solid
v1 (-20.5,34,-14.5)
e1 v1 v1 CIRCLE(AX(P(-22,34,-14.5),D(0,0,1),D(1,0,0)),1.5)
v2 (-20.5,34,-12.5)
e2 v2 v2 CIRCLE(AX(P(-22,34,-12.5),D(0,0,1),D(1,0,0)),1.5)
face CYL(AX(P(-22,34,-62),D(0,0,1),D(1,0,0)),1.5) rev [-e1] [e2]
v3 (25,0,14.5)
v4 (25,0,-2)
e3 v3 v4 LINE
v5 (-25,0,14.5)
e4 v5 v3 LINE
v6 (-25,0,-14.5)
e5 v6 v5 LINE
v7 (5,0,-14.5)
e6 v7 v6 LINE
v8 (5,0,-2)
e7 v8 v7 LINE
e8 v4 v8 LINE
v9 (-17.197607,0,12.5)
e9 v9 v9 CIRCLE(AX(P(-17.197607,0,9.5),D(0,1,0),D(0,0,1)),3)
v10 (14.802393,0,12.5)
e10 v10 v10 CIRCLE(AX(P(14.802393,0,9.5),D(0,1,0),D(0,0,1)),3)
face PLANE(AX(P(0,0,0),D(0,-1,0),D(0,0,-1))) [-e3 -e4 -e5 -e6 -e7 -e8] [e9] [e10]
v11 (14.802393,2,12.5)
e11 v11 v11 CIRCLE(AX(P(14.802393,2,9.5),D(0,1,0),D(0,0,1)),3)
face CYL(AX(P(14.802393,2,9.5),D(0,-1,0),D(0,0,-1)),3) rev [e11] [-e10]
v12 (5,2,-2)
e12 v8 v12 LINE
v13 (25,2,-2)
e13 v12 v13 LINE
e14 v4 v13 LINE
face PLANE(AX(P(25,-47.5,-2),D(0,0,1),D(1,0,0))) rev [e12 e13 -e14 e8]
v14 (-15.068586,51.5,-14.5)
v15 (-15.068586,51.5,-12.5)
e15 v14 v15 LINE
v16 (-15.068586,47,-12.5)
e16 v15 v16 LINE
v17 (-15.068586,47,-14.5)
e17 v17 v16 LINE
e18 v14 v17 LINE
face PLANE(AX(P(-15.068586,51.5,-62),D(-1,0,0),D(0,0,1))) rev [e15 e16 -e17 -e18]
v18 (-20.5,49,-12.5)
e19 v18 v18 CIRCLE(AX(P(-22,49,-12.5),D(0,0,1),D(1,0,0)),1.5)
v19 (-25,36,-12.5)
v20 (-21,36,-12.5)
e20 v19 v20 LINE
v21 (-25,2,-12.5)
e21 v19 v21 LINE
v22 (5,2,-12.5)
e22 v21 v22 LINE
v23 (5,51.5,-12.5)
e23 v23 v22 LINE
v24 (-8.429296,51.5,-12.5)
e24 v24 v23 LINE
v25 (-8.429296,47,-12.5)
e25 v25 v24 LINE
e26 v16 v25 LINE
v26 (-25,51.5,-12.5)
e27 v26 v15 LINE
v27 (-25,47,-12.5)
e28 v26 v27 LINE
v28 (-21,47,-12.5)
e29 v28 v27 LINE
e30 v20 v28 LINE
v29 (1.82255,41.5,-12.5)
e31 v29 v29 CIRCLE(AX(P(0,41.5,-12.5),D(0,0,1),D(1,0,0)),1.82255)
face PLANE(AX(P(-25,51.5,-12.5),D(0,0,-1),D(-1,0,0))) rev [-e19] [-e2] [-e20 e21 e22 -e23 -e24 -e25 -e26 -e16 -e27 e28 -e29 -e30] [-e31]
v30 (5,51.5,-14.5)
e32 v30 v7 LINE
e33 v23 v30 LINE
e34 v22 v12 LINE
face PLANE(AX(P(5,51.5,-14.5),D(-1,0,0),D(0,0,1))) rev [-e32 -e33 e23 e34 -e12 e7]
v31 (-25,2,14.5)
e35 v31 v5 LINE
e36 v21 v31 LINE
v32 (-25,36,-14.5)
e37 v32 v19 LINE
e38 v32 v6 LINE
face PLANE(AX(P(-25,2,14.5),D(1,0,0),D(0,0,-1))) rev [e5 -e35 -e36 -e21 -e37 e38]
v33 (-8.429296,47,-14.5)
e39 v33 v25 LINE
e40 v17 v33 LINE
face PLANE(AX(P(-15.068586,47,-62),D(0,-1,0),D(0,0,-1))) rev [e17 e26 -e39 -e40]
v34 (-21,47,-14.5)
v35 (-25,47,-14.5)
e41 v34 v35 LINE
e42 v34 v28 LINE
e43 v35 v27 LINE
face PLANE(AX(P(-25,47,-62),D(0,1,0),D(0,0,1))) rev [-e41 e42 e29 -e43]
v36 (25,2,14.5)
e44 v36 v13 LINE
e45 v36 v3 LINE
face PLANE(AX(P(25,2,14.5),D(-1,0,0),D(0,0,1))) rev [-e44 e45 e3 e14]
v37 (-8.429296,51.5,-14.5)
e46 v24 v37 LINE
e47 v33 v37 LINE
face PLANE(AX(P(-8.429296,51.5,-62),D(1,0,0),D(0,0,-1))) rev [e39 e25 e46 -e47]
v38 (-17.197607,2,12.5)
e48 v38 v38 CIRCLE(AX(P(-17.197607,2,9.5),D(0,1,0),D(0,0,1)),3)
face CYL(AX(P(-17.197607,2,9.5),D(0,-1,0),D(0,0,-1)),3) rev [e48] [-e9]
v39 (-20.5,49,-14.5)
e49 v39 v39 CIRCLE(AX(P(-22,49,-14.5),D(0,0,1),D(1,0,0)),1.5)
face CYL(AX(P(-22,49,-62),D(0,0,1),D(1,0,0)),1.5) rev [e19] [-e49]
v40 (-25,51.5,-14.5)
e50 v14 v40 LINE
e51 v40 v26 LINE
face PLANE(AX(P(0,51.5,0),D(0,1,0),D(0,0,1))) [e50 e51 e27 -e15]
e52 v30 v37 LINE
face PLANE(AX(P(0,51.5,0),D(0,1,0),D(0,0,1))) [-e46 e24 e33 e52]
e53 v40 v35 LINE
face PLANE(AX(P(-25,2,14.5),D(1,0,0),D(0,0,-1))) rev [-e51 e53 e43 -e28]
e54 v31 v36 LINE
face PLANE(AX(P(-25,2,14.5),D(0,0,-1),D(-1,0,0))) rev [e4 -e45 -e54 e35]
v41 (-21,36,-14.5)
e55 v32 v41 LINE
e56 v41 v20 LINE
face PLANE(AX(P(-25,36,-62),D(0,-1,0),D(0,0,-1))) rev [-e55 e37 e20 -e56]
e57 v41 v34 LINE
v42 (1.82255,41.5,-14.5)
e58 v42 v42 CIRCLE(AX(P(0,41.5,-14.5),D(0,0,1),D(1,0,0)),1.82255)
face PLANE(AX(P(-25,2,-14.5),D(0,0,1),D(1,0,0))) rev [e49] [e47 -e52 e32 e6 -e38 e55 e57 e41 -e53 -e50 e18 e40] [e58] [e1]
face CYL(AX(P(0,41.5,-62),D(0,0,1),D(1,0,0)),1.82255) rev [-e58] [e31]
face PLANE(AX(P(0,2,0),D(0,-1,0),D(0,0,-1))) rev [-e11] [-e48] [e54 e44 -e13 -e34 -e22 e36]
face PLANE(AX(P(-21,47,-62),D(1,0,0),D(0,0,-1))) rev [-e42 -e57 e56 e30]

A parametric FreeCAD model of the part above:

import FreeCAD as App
import Part
import Sketcher
from FreeCAD import Vector
Q = App.Units.Quantity


def add_polygon(sketch, points):
    """Adds a closed chain of lines whose ends are joined by coincident constraints."""
    first, n = sketch.GeometryCount, len(points)
    for a, b in zip(points, points[1:] + points[:1]):
        sketch.addGeometry(Part.LineSegment(App.Vector(*a, 0), App.Vector(*b, 0)), False)
    for i in range(n):
        sketch.addConstraint(Sketcher.Constraint("Coincident", first + i, 2, first + (i + 1) % n, 1))

doc = App.newDocument("Part")
body = doc.addObject("PartDesign::Body", "Body")

# Sketch on XZ plane
sketch1 = body.newObject("Sketcher::SketchObject", "Sketch")
sketch1.AttachmentSupport = (doc.getObject("XZ_Plane"), [""])
sketch1.MapMode = "FlatFace"
add_polygon(sketch1, [(-25, -14.5), (-25, 14.5), (25, 14.5), (25, -14.5)])  # lines 0-3
sketch1.addGeometry(Part.Circle(Vector(-17.197607, 9.5, 0), Vector(0, 0, 1), 3), False)  # 4
sketch1.addGeometry(Part.Circle(Vector(14.802393, 9.5, 0), Vector(0, 0, 1), 3), False)  # 5
sketch1.addConstraint([
    Sketcher.Constraint("Vertical", 0),
    Sketcher.Constraint("Horizontal", 1),
    Sketcher.Constraint("Vertical", 2),
    Sketcher.Constraint("Horizontal", 3),
    Sketcher.Constraint("Equal", 4, 5),
    Sketcher.Constraint("Symmetric", 0, 2, 2, 2, -1, 1),
    Sketcher.Constraint("Horizontal", 4, 3, 5, 3),
    Sketcher.Constraint("Diameter", 4, Q("6 mm")),
    Sketcher.Constraint("DistanceX", 1, 1, 1, 2, Q("50 mm")),
    Sketcher.Constraint("DistanceY", 0, 1, 0, 2, Q("29 mm")),
    Sketcher.Constraint("DistanceX", 4, 3, 5, 3, Q("32 mm")),
    Sketcher.Constraint("DistanceY", 4, 3, 0, 2, Q("5 mm")),
    Sketcher.Constraint("DistanceX", 4, 3, -1, 1, Q("17.197607 mm")),
])
pad1 = body.newObject("PartDesign::Pad", "Pad")
pad1.Profile = sketch1
pad1.Length = 2
pad1.Reversed = True

# Sketch on XZ plane
sketch2 = body.newObject("Sketcher::SketchObject", "Sketch001")
sketch2.AttachmentSupport = (doc.getObject("XZ_Plane"), [""])
sketch2.MapMode = "FlatFace"
sketch2.AttachmentOffset = App.Placement(Vector(0, 0, -2), App.Rotation())
add_polygon(sketch2, [(-25, -14.5), (-25, -12.5), (5, -12.5), (5, -14.5)])  # lines 0-3
sketch2.addConstraint([
    Sketcher.Constraint("Vertical", 0),
    Sketcher.Constraint("Horizontal", 1),
    Sketcher.Constraint("Vertical", 2),
    Sketcher.Constraint("Horizontal", 3),
    Sketcher.Constraint("DistanceX", 1, 1, 1, 2, Q("30 mm")),
    Sketcher.Constraint("DistanceY", 0, 1, 0, 2, Q("2 mm")),
    Sketcher.Constraint("DistanceX", 0, 2, -1, 1, Q("25 mm")),
    Sketcher.Constraint("DistanceY", 0, 2, -1, 1, Q("12.5 mm")),
])
pad2 = body.newObject("PartDesign::Pad", "Pad001")
pad2.Profile = sketch2
pad2.Length = 49.5
pad2.Reversed = True

# Sketch on XY plane
sketch3 = body.newObject("Sketcher::SketchObject", "Sketch002")
sketch3.AttachmentSupport = (doc.getObject("XY_Plane"), [""])
sketch3.MapMode = "FlatFace"
sketch3.AttachmentOffset = App.Placement(Vector(0, 0, -12.5), App.Rotation())
sketch3.addGeometry(Part.Circle(Vector(-22, 49, 0), Vector(0, 0, 1), 1.5), False)  # 0
sketch3.addGeometry(Part.Circle(Vector(-22, 34, 0), Vector(0, 0, 1), 1.5), False)  # 1
sketch3.addGeometry(Part.Circle(Vector(0, 41.5, 0), Vector(0, 0, 1), 1.82255), False)  # 2
add_polygon(sketch3, [(-25, 47), (-25, 36), (-21, 36), (-21, 47)])  # lines 3-6
add_polygon(sketch3, [(-15.068586, 51.5), (-15.068586, 47), (-8.429296, 47), (-8.429296, 51.5)])  # lines 7-10
sketch3.addConstraint([
    Sketcher.Constraint("Vertical", 3),
    Sketcher.Constraint("Horizontal", 4),
    Sketcher.Constraint("Vertical", 5),
    Sketcher.Constraint("Horizontal", 6),
    Sketcher.Constraint("Vertical", 7),
    Sketcher.Constraint("Horizontal", 8),
    Sketcher.Constraint("Vertical", 9),
    Sketcher.Constraint("Horizontal", 10),
    Sketcher.Constraint("Equal", 0, 1),
    Sketcher.Constraint("PointOnObject", 2, 3, -2),
    Sketcher.Constraint("Horizontal", 6, 2, 7, 2),
    Sketcher.Constraint("Vertical", 0, 3, 1, 3),
    Sketcher.Constraint("Diameter", 0, Q("3 mm")),
    Sketcher.Constraint("DistanceX", 4, 1, 4, 2, Q("4 mm")),
    Sketcher.Constraint("DistanceY", 3, 2, 3, 1, Q("11 mm")),
    Sketcher.Constraint("DistanceY", 7, 2, 7, 1, Q("4.5 mm")),
    Sketcher.Constraint("DistanceX", 0, 3, -1, 1, Q("22 mm")),
    Sketcher.Constraint("DistanceY", -1, 1, 0, 3, Q("49 mm")),
    Sketcher.Constraint("DistanceY", -1, 1, 1, 3, Q("34 mm")),
    Sketcher.Constraint("DistanceX", 3, 2, -1, 1, Q("25 mm")),
    Sketcher.Constraint("DistanceY", -1, 1, 3, 2, Q("36 mm")),
    Sketcher.Constraint("DistanceY", 2, 3, 9, 2, Q("10 mm")),
    Sketcher.Constraint("Diameter", 2, Q("3.645101 mm")),
    Sketcher.Constraint("DistanceX", 8, 1, 8, 2, Q("6.639291 mm")),
    Sketcher.Constraint("DistanceX", 7, 2, -1, 1, Q("15.068586 mm")),
])
pocket1 = body.newObject("PartDesign::Pocket", "Pocket")
pocket1.Profile = sketch3
pocket1.Length = 49.5

# Sketch on XZ plane
sketch4 = body.newObject("Sketcher::SketchObject", "Sketch003")
sketch4.AttachmentSupport = (doc.getObject("XZ_Plane"), [""])
sketch4.MapMode = "FlatFace"
sketch4.AttachmentOffset = App.Placement(Vector(0, 0, -2), App.Rotation())
add_polygon(sketch4, [(5, -14.5), (5, -2), (25, -2), (25, -14.5)])  # lines 0-3
sketch4.addConstraint([
    Sketcher.Constraint("Vertical", 0),
    Sketcher.Constraint("Horizontal", 1),
    Sketcher.Constraint("Vertical", 2),
    Sketcher.Constraint("Horizontal", 3),
    Sketcher.Constraint("DistanceX", 1, 1, 1, 2, Q("20 mm")),
    Sketcher.Constraint("DistanceY", 0, 1, 0, 2, Q("12.5 mm")),
    Sketcher.Constraint("DistanceX", -1, 1, 0, 2, Q("5 mm")),
    Sketcher.Constraint("DistanceY", 0, 2, -1, 1, Q("2 mm")),
])
pocket2 = body.newObject("PartDesign::Pocket", "Pocket001")
pocket2.Profile = sketch4
pocket2.Length = 49.5
pocket2.Reversed = True

doc.recompute()
